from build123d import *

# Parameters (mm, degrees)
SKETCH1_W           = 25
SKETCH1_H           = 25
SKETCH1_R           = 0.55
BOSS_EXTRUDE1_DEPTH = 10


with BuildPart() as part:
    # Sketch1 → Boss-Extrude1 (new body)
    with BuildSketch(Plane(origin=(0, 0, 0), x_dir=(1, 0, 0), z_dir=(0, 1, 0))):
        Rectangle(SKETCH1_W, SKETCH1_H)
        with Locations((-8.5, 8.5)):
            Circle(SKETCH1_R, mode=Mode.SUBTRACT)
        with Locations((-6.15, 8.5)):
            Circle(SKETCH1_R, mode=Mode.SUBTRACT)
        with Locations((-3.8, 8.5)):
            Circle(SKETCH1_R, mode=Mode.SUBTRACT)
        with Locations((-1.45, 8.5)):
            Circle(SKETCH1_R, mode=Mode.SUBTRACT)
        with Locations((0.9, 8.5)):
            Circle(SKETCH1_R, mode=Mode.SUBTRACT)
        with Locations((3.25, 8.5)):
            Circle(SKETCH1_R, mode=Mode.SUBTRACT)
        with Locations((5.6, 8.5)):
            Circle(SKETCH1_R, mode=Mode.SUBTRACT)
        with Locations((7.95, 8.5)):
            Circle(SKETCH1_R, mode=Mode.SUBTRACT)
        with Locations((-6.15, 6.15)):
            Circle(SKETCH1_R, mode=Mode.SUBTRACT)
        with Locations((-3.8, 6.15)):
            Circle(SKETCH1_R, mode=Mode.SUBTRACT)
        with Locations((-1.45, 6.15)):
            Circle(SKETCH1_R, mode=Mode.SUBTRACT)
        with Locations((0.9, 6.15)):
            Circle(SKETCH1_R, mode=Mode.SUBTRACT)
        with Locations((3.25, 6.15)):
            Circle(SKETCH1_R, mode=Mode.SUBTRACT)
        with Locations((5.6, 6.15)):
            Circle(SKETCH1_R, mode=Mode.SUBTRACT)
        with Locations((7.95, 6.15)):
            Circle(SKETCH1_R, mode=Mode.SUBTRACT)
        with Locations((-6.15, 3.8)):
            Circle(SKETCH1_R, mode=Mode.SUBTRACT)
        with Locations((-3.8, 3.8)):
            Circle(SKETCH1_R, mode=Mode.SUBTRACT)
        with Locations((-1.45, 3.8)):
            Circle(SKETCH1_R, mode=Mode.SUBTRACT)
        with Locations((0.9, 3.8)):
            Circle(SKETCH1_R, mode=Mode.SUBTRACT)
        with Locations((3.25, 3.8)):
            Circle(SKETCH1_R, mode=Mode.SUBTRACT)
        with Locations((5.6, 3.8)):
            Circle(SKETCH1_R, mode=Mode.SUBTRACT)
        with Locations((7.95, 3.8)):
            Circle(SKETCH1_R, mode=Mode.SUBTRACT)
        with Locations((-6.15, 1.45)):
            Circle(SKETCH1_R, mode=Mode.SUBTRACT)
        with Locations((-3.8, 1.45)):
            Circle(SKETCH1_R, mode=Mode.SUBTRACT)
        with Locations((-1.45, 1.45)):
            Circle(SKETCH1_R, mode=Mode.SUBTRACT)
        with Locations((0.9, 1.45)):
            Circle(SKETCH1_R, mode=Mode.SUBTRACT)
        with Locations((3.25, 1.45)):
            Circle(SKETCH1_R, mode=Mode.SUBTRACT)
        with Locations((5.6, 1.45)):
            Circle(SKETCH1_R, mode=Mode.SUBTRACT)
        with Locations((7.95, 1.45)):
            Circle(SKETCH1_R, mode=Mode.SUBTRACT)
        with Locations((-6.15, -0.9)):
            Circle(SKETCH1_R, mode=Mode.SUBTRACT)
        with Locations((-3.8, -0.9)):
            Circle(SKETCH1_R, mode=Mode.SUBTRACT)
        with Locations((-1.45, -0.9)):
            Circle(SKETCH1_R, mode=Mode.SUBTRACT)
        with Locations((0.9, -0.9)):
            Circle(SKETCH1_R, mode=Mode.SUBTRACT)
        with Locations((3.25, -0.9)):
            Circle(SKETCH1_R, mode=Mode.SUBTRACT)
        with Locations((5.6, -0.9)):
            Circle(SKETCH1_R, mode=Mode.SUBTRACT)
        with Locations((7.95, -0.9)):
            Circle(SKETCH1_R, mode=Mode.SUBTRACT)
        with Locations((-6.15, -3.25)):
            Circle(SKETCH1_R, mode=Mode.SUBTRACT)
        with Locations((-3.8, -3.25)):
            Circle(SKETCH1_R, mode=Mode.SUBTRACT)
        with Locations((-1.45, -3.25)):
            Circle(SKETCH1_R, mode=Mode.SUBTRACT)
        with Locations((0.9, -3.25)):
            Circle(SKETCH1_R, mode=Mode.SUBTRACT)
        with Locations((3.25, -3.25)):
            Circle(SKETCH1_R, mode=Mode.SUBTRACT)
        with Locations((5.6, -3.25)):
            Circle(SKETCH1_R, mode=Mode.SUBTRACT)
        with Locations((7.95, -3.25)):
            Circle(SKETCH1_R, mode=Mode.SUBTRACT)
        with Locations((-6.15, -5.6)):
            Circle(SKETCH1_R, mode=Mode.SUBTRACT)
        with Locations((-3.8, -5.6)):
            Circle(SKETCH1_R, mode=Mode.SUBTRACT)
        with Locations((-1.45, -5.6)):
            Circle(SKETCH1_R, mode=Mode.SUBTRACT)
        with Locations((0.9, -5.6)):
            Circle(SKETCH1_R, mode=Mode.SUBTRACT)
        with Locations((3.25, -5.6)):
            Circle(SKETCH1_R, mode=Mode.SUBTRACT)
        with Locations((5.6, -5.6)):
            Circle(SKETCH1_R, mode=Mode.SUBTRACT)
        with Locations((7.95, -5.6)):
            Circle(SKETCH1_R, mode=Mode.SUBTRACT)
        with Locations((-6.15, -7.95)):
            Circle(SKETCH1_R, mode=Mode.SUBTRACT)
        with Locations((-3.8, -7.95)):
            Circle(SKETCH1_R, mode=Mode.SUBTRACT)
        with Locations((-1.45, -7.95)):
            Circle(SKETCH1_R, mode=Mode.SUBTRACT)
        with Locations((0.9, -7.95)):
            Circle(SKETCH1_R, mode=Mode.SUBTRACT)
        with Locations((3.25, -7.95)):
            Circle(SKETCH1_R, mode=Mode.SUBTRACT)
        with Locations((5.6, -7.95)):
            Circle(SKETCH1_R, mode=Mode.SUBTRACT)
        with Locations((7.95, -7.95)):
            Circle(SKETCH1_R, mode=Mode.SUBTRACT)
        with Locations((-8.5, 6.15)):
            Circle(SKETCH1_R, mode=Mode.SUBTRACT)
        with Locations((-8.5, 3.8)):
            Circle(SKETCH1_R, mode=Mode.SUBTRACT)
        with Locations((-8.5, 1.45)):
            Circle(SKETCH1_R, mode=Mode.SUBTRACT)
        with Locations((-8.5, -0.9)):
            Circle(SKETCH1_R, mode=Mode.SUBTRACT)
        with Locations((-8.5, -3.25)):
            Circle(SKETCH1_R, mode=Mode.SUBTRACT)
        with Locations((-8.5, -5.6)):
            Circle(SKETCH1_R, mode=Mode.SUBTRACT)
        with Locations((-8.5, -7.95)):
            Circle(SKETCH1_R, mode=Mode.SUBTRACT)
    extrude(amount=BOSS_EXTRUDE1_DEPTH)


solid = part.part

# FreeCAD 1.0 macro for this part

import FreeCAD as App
import Part
import Sketcher

V = App.Vector


def add_polygon(sketch, points):
    """Adds a closed chain of lines whose ends are joined by coincident constraints."""
    first, n = sketch.GeometryCount, len(points)
    for a, b in zip(points, points[1:] + points[:1]):
        sketch.addGeometry(Part.LineSegment(App.Vector(*a, 0), App.Vector(*b, 0)), False)
    for i in range(n):
        sketch.addConstraint(Sketcher.Constraint("Coincident", first + i, 2, first + (i + 1) % n, 1))

doc = App.newDocument("Part")
body = doc.addObject("PartDesign::Body", "Body")

# Sketch on XZ plane
sketch1 = body.newObject("Sketcher::SketchObject", "Sketch")
sketch1.AttachmentSupport = (doc.getObject("XZ_Plane"), [""])
sketch1.MapMode = "FlatFace"
add_polygon(sketch1, [(-12.5, -12.5), (-12.5, 12.5), (12.5, 12.5), (12.5, -12.5)])  # lines 0-3
sketch1.addGeometry(Part.Circle(V(-8.5, 8, 0), V(0, 0, 1), 0.6), False)  # 4
sketch1.addGeometry(Part.Circle(V(-6.2, 8, 0), V(0, 0, 1), 0.6), False)  # 5
sketch1.addGeometry(Part.Circle(V(-8.5, 5.6, 0), V(0, 0, 1), 0.6), False)  # 6
sketch1.addGeometry(Part.Circle(V(-6.2, 5.6, 0), V(0, 0, 1), 0.6), False)  # 7
sketch1.addGeometry(Part.Circle(V(-3.8, 8, 0), V(0, 0, 1), 0.6), False)  # 8
sketch1.addGeometry(Part.Circle(V(-1.4, 8, 0), V(0, 0, 1), 0.6), False)  # 9
sketch1.addGeometry(Part.Circle(V(-3.8, 5.6, 0), V(0, 0, 1), 0.6), False)  # 10
sketch1.addGeometry(Part.Circle(V(-1.4, 5.6, 0), V(0, 0, 1), 0.6), False)  # 11
sketch1.addGeometry(Part.Circle(V(-8.5, 3.2, 0), V(0, 0, 1), 0.6), False)  # 12
sketch1.addGeometry(Part.Circle(V(-6.2, 3.2, 0), V(0, 0, 1), 0.6), False)  # 13
sketch1.addGeometry(Part.Circle(V(-8.5, 0.9, 0), V(0, 0, 1), 0.6), False)  # 14
sketch1.addGeometry(Part.Circle(V(-6.2, 0.9, 0), V(0, 0, 1), 0.6), False)  # 15
sketch1.addGeometry(Part.Circle(V(-3.8, 3.2, 0), V(0, 0, 1), 0.6), False)  # 16
sketch1.addGeometry(Part.Circle(V(-1.4, 3.2, 0), V(0, 0, 1), 0.6), False)  # 17
sketch1.addGeometry(Part.Circle(V(-3.8, 0.9, 0), V(0, 0, 1), 0.6), False)  # 18
sketch1.addGeometry(Part.Circle(V(-1.4, 0.9, 0), V(0, 0, 1), 0.6), False)  # 19
sketch1.addGeometry(Part.Circle(V(0.9, 8, 0), V(0, 0, 1), 0.6), False)  # 20
sketch1.addGeometry(Part.Circle(V(3.2, 8, 0), V(0, 0, 1), 0.6), False)  # 21
sketch1.addGeometry(Part.Circle(V(0.9, 5.6, 0), V(0, 0, 1), 0.6), False)  # 22
sketch1.addGeometry(Part.Circle(V(3.2, 5.6, 0), V(0, 0, 1), 0.6), False)  # 23
sketch1.addGeometry(Part.Circle(V(5.6, 8, 0), V(0, 0, 1), 0.6), False)  # 24
sketch1.addGeometry(Part.Circle(V(8, 8, 0), V(0, 0, 1), 0.6), False)  # 25
sketch1.addGeometry(Part.Circle(V(5.6, 5.6, 0), V(0, 0, 1), 0.6), False)  # 26
sketch1.addGeometry(Part.Circle(V(8, 5.6, 0), V(0, 0, 1), 0.6), False)  # 27
sketch1.addGeometry(Part.Circle(V(0.9, 3.2, 0), V(0, 0, 1), 0.6), False)  # 28
sketch1.addGeometry(Part.Circle(V(3.2, 3.2, 0), V(0, 0, 1), 0.6), False)  # 29
sketch1.addGeometry(Part.Circle(V(0.9, 0.9, 0), V(0, 0, 1), 0.6), False)  # 30
sketch1.addGeometry(Part.Circle(V(3.2, 0.9, 0), V(0, 0, 1), 0.6), False)  # 31
sketch1.addGeometry(Part.Circle(V(5.6, 3.2, 0), V(0, 0, 1), 0.6), False)  # 32
sketch1.addGeometry(Part.Circle(V(8, 3.2, 0), V(0, 0, 1), 0.6), False)  # 33
sketch1.addGeometry(Part.Circle(V(5.6, 0.9, 0), V(0, 0, 1), 0.6), False)  # 34
sketch1.addGeometry(Part.Circle(V(8, 0.9, 0), V(0, 0, 1), 0.6), False)  # 35
sketch1.addGeometry(Part.Circle(V(-8.5, -1.4, 0), V(0, 0, 1), 0.6), False)  # 36
sketch1.addGeometry(Part.Circle(V(-6.2, -1.4, 0), V(0, 0, 1), 0.6), False)  # 37
sketch1.addGeometry(Part.Circle(V(-8.5, -3.8, 0), V(0, 0, 1), 0.6), False)  # 38
sketch1.addGeometry(Part.Circle(V(-6.2, -3.8, 0), V(0, 0, 1), 0.6), False)  # 39
sketch1.addGeometry(Part.Circle(V(-3.8, -1.4, 0), V(0, 0, 1), 0.6), False)  # 40
sketch1.addGeometry(Part.Circle(V(-1.4, -1.4, 0), V(0, 0, 1), 0.6), False)  # 41
sketch1.addGeometry(Part.Circle(V(-3.8, -3.8, 0), V(0, 0, 1), 0.6), False)  # 42
sketch1.addGeometry(Part.Circle(V(-1.4, -3.8, 0), V(0, 0, 1), 0.6), False)  # 43
sketch1.addGeometry(Part.Circle(V(-8.5, -6.2, 0), V(0, 0, 1), 0.6), False)  # 44
sketch1.addGeometry(Part.Circle(V(-6.2, -6.2, 0), V(0, 0, 1), 0.6), False)  # 45
sketch1.addGeometry(Part.Circle(V(-8.5, -8.5, 0), V(0, 0, 1), 0.6), False)  # 46
sketch1.addGeometry(Part.Circle(V(-6.2, -8.5, 0), V(0, 0, 1), 0.6), False)  # 47
sketch1.addGeometry(Part.Circle(V(-3.8, -6.2, 0), V(0, 0, 1), 0.6), False)  # 48
sketch1.addGeometry(Part.Circle(V(-1.4, -6.2, 0), V(0, 0, 1), 0.6), False)  # 49
sketch1.addGeometry(Part.Circle(V(-3.8, -8.5, 0), V(0, 0, 1), 0.6), False)  # 50
sketch1.addGeometry(Part.Circle(V(-1.4, -8.5, 0), V(0, 0, 1), 0.6), False)  # 51
sketch1.addGeometry(Part.Circle(V(0.9, -1.4, 0), V(0, 0, 1), 0.6), False)  # 52
sketch1.addGeometry(Part.Circle(V(3.2, -1.4, 0), V(0, 0, 1), 0.6), False)  # 53
sketch1.addGeometry(Part.Circle(V(0.9, -3.8, 0), V(0, 0, 1), 0.6), False)  # 54
sketch1.addGeometry(Part.Circle(V(3.2, -3.8, 0), V(0, 0, 1), 0.6), False)  # 55
sketch1.addGeometry(Part.Circle(V(5.6, -1.4, 0), V(0, 0, 1), 0.6), False)  # 56
sketch1.addGeometry(Part.Circle(V(8, -1.4, 0), V(0, 0, 1), 0.6), False)  # 57
sketch1.addGeometry(Part.Circle(V(5.6, -3.8, 0), V(0, 0, 1), 0.6), False)  # 58
sketch1.addGeometry(Part.Circle(V(8, -3.8, 0), V(0, 0, 1), 0.6), False)  # 59
sketch1.addGeometry(Part.Circle(V(0.9, -6.2, 0), V(0, 0, 1), 0.6), False)  # 60
sketch1.addGeometry(Part.Circle(V(3.2, -6.2, 0), V(0, 0, 1), 0.6), False)  # 61
sketch1.addGeometry(Part.Circle(V(0.9, -8.5, 0), V(0, 0, 1), 0.6), False)  # 62
sketch1.addGeometry(Part.Circle(V(3.2, -8.5, 0), V(0, 0, 1), 0.6), False)  # 63
sketch1.addGeometry(Part.Circle(V(5.6, -6.2, 0), V(0, 0, 1), 0.6), False)  # 64
sketch1.addGeometry(Part.Circle(V(8, -6.2, 0), V(0, 0, 1), 0.6), False)  # 65
sketch1.addGeometry(Part.Circle(V(5.6, -8.5, 0), V(0, 0, 1), 0.6), False)  # 66
sketch1.addGeometry(Part.Circle(V(8, -8.5, 0), V(0, 0, 1), 0.6), False)  # 67
sketch1.addConstraint(Sketcher.Constraint("Vertical", 0))
sketch1.addConstraint(Sketcher.Constraint("Horizontal", 1))
sketch1.addConstraint(Sketcher.Constraint("Vertical", 2))
sketch1.addConstraint(Sketcher.Constraint("Horizontal", 3))
sketch1.addConstraint(Sketcher.Constraint("Equal", 4, 5))
sketch1.addConstraint(Sketcher.Constraint("Equal", 5, 6))
sketch1.addConstraint(Sketcher.Constraint("Equal", 6, 7))
sketch1.addConstraint(Sketcher.Constraint("Equal", 7, 8))
sketch1.addConstraint(Sketcher.Constraint("Equal", 8, 9))
sketch1.addConstraint(Sketcher.Constraint("Equal", 9, 10))
sketch1.addConstraint(Sketcher.Constraint("Equal", 10, 11))
sketch1.addConstraint(Sketcher.Constraint("Equal", 11, 12))
sketch1.addConstraint(Sketcher.Constraint("Equal", 12, 13))
sketch1.addConstraint(Sketcher.Constraint("Equal", 13, 14))
sketch1.addConstraint(Sketcher.Constraint("Equal", 14, 15))
sketch1.addConstraint(Sketcher.Constraint("Equal", 15, 16))
sketch1.addConstraint(Sketcher.Constraint("Equal", 16, 17))
sketch1.addConstraint(Sketcher.Constraint("Equal", 17, 18))
sketch1.addConstraint(Sketcher.Constraint("Equal", 18, 19))
sketch1.addConstraint(Sketcher.Constraint("Equal", 19, 20))
sketch1.addConstraint(Sketcher.Constraint("Equal", 20, 21))
sketch1.addConstraint(Sketcher.Constraint("Equal", 21, 22))
sketch1.addConstraint(Sketcher.Constraint("Equal", 22, 23))
sketch1.addConstraint(Sketcher.Constraint("Equal", 23, 24))
sketch1.addConstraint(Sketcher.Constraint("Equal", 24, 25))
sketch1.addConstraint(Sketcher.Constraint("Equal", 25, 26))
sketch1.addConstraint(Sketcher.Constraint("Equal", 26, 27))
sketch1.addConstraint(Sketcher.Constraint("Equal", 27, 28))
sketch1.addConstraint(Sketcher.Constraint("Equal", 28, 29))
sketch1.addConstraint(Sketcher.Constraint("Equal", 29, 30))
sketch1.addConstraint(Sketcher.Constraint("Equal", 30, 31))
sketch1.addConstraint(Sketcher.Constraint("Equal", 31, 32))
sketch1.addConstraint(Sketcher.Constraint("Equal", 32, 33))
sketch1.addConstraint(Sketcher.Constraint("Equal", 33, 34))
sketch1.addConstraint(Sketcher.Constraint("Equal", 34, 35))
sketch1.addConstraint(Sketcher.Constraint("Equal", 35, 36))
sketch1.addConstraint(Sketcher.Constraint("Equal", 36, 37))
sketch1.addConstraint(Sketcher.Constraint("Equal", 37, 38))
sketch1.addConstraint(Sketcher.Constraint("Equal", 38, 39))
sketch1.addConstraint(Sketcher.Constraint("Equal", 39, 40))
sketch1.addConstraint(Sketcher.Constraint("Equal", 40, 41))
sketch1.addConstraint(Sketcher.Constraint("Equal", 41, 42))
sketch1.addConstraint(Sketcher.Constraint("Equal", 42, 43))
sketch1.addConstraint(Sketcher.Constraint("Equal", 43, 44))
sketch1.addConstraint(Sketcher.Constraint("Equal", 44, 45))
sketch1.addConstraint(Sketcher.Constraint("Equal", 45, 46))
sketch1.addConstraint(Sketcher.Constraint("Equal", 46, 47))
sketch1.addConstraint(Sketcher.Constraint("Equal", 47, 48))
sketch1.addConstraint(Sketcher.Constraint("Equal", 48, 49))
sketch1.addConstraint(Sketcher.Constraint("Equal", 49, 50))
sketch1.addConstraint(Sketcher.Constraint("Equal", 50, 51))
sketch1.addConstraint(Sketcher.Constraint("Equal", 51, 52))
sketch1.addConstraint(Sketcher.Constraint("Equal", 52, 53))
sketch1.addConstraint(Sketcher.Constraint("Equal", 53, 54))
sketch1.addConstraint(Sketcher.Constraint("Equal", 54, 55))
sketch1.addConstraint(Sketcher.Constraint("Equal", 55, 56))
sketch1.addConstraint(Sketcher.Constraint("Equal", 56, 57))
sketch1.addConstraint(Sketcher.Constraint("Equal", 57, 58))
sketch1.addConstraint(Sketcher.Constraint("Equal", 58, 59))
sketch1.addConstraint(Sketcher.Constraint("Equal", 59, 60))
sketch1.addConstraint(Sketcher.Constraint("Equal", 60, 61))
sketch1.addConstraint(Sketcher.Constraint("Equal", 61, 62))
sketch1.addConstraint(Sketcher.Constraint("Equal", 62, 63))
sketch1.addConstraint(Sketcher.Constraint("Equal", 63, 64))
sketch1.addConstraint(Sketcher.Constraint("Equal", 64, 65))
sketch1.addConstraint(Sketcher.Constraint("Equal", 65, 66))
sketch1.addConstraint(Sketcher.Constraint("Equal", 66, 67))
sketch1.addConstraint(Sketcher.Constraint("Symmetric", 0, 2, 2, 2, -1, 1))
sketch1.addConstraint(Sketcher.Constraint("Horizontal", 4, 3, 5, 3))
sketch1.addConstraint(Sketcher.Constraint("Horizontal", 6, 3, 7, 3))
sketch1.addConstraint(Sketcher.Constraint("Horizontal", 5, 3, 8, 3))
sketch1.addConstraint(Sketcher.Constraint("Horizontal", 8, 3, 9, 3))
sketch1.addConstraint(Sketcher.Constraint("Horizontal", 7, 3, 10, 3))
sketch1.addConstraint(Sketcher.Constraint("Horizontal", 10, 3, 11, 3))
sketch1.addConstraint(Sketcher.Constraint("Horizontal", 12, 3, 13, 3))
sketch1.addConstraint(Sketcher.Constraint("Horizontal", 14, 3, 15, 3))
sketch1.addConstraint(Sketcher.Constraint("Horizontal", 13, 3, 16, 3))
sketch1.addConstraint(Sketcher.Constraint("Horizontal", 16, 3, 17, 3))
sketch1.addConstraint(Sketcher.Constraint("Horizontal", 15, 3, 18, 3))
sketch1.addConstraint(Sketcher.Constraint("Horizontal", 18, 3, 19, 3))
sketch1.addConstraint(Sketcher.Constraint("Horizontal", 9, 3, 20, 3))
sketch1.addConstraint(Sketcher.Constraint("Horizontal", 20, 3, 21, 3))
sketch1.addConstraint(Sketcher.Constraint("Horizontal", 11, 3, 22, 3))
sketch1.addConstraint(Sketcher.Constraint("Horizontal", 22, 3, 23, 3))
sketch1.addConstraint(Sketcher.Constraint("Horizontal", 21, 3, 24, 3))
sketch1.addConstraint(Sketcher.Constraint("Horizontal", 24, 3, 25, 3))
sketch1.addConstraint(Sketcher.Constraint("Horizontal", 23, 3, 26, 3))
sketch1.addConstraint(Sketcher.Constraint("Horizontal", 26, 3, 27, 3))
sketch1.addConstraint(Sketcher.Constraint("Horizontal", 17, 3, 28, 3))
sketch1.addConstraint(Sketcher.Constraint("Horizontal", 28, 3, 29, 3))
sketch1.addConstraint(Sketcher.Constraint("Horizontal", 19, 3, 30, 3))
sketch1.addConstraint(Sketcher.Constraint("Horizontal", 30, 3, 31, 3))
sketch1.addConstraint(Sketcher.Constraint("Horizontal", 29, 3, 32, 3))
sketch1.addConstraint(Sketcher.Constraint("Horizontal", 32, 3, 33, 3))
sketch1.addConstraint(Sketcher.Constraint("Horizontal", 31, 3, 34, 3))
sketch1.addConstraint(Sketcher.Constraint("Horizontal", 34, 3, 35, 3))
sketch1.addConstraint(Sketcher.Constraint("Horizontal", 36, 3, 37, 3))
sketch1.addConstraint(Sketcher.Constraint("Horizontal", 38, 3, 39, 3))
sketch1.addConstraint(Sketcher.Constraint("Horizontal", 37, 3, 40, 3))
sketch1.addConstraint(Sketcher.Constraint("Horizontal", 40, 3, 41, 3))
sketch1.addConstraint(Sketcher.Constraint("Horizontal", 39, 3, 42, 3))
sketch1.addConstraint(Sketcher.Constraint("Horizontal", 42, 3, 43, 3))
sketch1.addConstraint(Sketcher.Constraint("Horizontal", 44, 3, 45, 3))
sketch1.addConstraint(Sketcher.Constraint("Horizontal", 46, 3, 47, 3))
sketch1.addConstraint(Sketcher.Constraint("Horizontal", 45, 3, 48, 3))
sketch1.addConstraint(Sketcher.Constraint("Horizontal", 48, 3, 49, 3))
sketch1.addConstraint(Sketcher.Constraint("Horizontal", 47, 3, 50, 3))
sketch1.addConstraint(Sketcher.Constraint("Horizontal", 50, 3, 51, 3))
sketch1.addConstraint(Sketcher.Constraint("Horizontal", 41, 3, 52, 3))
sketch1.addConstraint(Sketcher.Constraint("Horizontal", 52, 3, 53, 3))
sketch1.addConstraint(Sketcher.Constraint("Horizontal", 43, 3, 54, 3))
sketch1.addConstraint(Sketcher.Constraint("Horizontal", 54, 3, 55, 3))
sketch1.addConstraint(Sketcher.Constraint("Horizontal", 53, 3, 56, 3))
sketch1.addConstraint(Sketcher.Constraint("Horizontal", 56, 3, 57, 3))
sketch1.addConstraint(Sketcher.Constraint("Horizontal", 55, 3, 58, 3))
sketch1.addConstraint(Sketcher.Constraint("Horizontal", 58, 3, 59, 3))
sketch1.addConstraint(Sketcher.Constraint("Horizontal", 49, 3, 60, 3))
sketch1.addConstraint(Sketcher.Constraint("Horizontal", 60, 3, 61, 3))
sketch1.addConstraint(Sketcher.Constraint("Horizontal", 51, 3, 62, 3))
sketch1.addConstraint(Sketcher.Constraint("Horizontal", 62, 3, 63, 3))
sketch1.addConstraint(Sketcher.Constraint("Horizontal", 61, 3, 64, 3))
sketch1.addConstraint(Sketcher.Constraint("Horizontal", 64, 3, 65, 3))
sketch1.addConstraint(Sketcher.Constraint("Horizontal", 63, 3, 66, 3))
sketch1.addConstraint(Sketcher.Constraint("Horizontal", 66, 3, 67, 3))
sketch1.addConstraint(Sketcher.Constraint("Vertical", 4, 3, 6, 3))
sketch1.addConstraint(Sketcher.Constraint("Vertical", 5, 3, 7, 3))
sketch1.addConstraint(Sketcher.Constraint("Vertical", 8, 3, 10, 3))
sketch1.addConstraint(Sketcher.Constraint("Vertical", 9, 3, 11, 3))
sketch1.addConstraint(Sketcher.Constraint("Vertical", 6, 3, 12, 3))
sketch1.addConstraint(Sketcher.Constraint("Vertical", 7, 3, 13, 3))
sketch1.addConstraint(Sketcher.Constraint("Vertical", 12, 3, 14, 3))
sketch1.addConstraint(Sketcher.Constraint("Vertical", 13, 3, 15, 3))
sketch1.addConstraint(Sketcher.Constraint("Vertical", 10, 3, 16, 3))
sketch1.addConstraint(Sketcher.Constraint("Vertical", 11, 3, 17, 3))
sketch1.addConstraint(Sketcher.Constraint("Vertical", 16, 3, 18, 3))
sketch1.addConstraint(Sketcher.Constraint("Vertical", 17, 3, 19, 3))
sketch1.addConstraint(Sketcher.Constraint("Vertical", 20, 3, 22, 3))
sketch1.addConstraint(Sketcher.Constraint("Vertical", 21, 3, 23, 3))
sketch1.addConstraint(Sketcher.Constraint("Vertical", 24, 3, 26, 3))
sketch1.addConstraint(Sketcher.Constraint("Vertical", 25, 3, 27, 3))
sketch1.addConstraint(Sketcher.Constraint("Vertical", 22, 3, 28, 3))
sketch1.addConstraint(Sketcher.Constraint("Vertical", 23, 3, 29, 3))
sketch1.addConstraint(Sketcher.Constraint("Vertical", 28, 3, 30, 3))
sketch1.addConstraint(Sketcher.Constraint("Vertical", 29, 3, 31, 3))
sketch1.addConstraint(Sketcher.Constraint("Vertical", 26, 3, 32, 3))
sketch1.addConstraint(Sketcher.Constraint("Vertical", 27, 3, 33, 3))
sketch1.addConstraint(Sketcher.Constraint("Vertical", 32, 3, 34, 3))
sketch1.addConstraint(Sketcher.Constraint("Vertical", 33, 3, 35, 3))
sketch1.addConstraint(Sketcher.Constraint("Vertical", 14, 3, 36, 3))
sketch1.addConstraint(Sketcher.Constraint("Vertical", 15, 3, 37, 3))
sketch1.addConstraint(Sketcher.Constraint("Vertical", 36, 3, 38, 3))
sketch1.addConstraint(Sketcher.Constraint("Vertical", 37, 3, 39, 3))
sketch1.addConstraint(Sketcher.Constraint("Vertical", 18, 3, 40, 3))
sketch1.addConstraint(Sketcher.Constraint("Vertical", 19, 3, 41, 3))
sketch1.addConstraint(Sketcher.Constraint("Vertical", 40, 3, 42, 3))
sketch1.addConstraint(Sketcher.Constraint("Vertical", 41, 3, 43, 3))
sketch1.addConstraint(Sketcher.Constraint("Vertical", 38, 3, 44, 3))
sketch1.addConstraint(Sketcher.Constraint("Vertical", 39, 3, 45, 3))
sketch1.addConstraint(Sketcher.Constraint("Vertical", 44, 3, 46, 3))
sketch1.addConstraint(Sketcher.Constraint("Vertical", 45, 3, 47, 3))
sketch1.addConstraint(Sketcher.Constraint("Vertical", 42, 3, 48, 3))
sketch1.addConstraint(Sketcher.Constraint("Vertical", 43, 3, 49, 3))
sketch1.addConstraint(Sketcher.Constraint("Vertical", 48, 3, 50, 3))
sketch1.addConstraint(Sketcher.Constraint("Vertical", 49, 3, 51, 3))
sketch1.addConstraint(Sketcher.Constraint("Vertical", 30, 3, 52, 3))
sketch1.addConstraint(Sketcher.Constraint("Vertical", 31, 3, 53, 3))
sketch1.addConstraint(Sketcher.Constraint("Vertical", 52, 3, 54, 3))
sketch1.addConstraint(Sketcher.Constraint("Vertical", 53, 3, 55, 3))
sketch1.addConstraint(Sketcher.Constraint("Vertical", 34, 3, 56, 3))
sketch1.addConstraint(Sketcher.Constraint("Vertical", 35, 3, 57, 3))
sketch1.addConstraint(Sketcher.Constraint("Vertical", 56, 3, 58, 3))
sketch1.addConstraint(Sketcher.Constraint("Vertical", 57, 3, 59, 3))
sketch1.addConstraint(Sketcher.Constraint("Vertical", 54, 3, 60, 3))
sketch1.addConstraint(Sketcher.Constraint("Vertical", 55, 3, 61, 3))
sketch1.addConstraint(Sketcher.Constraint("Vertical", 60, 3, 62, 3))
sketch1.addConstraint(Sketcher.Constraint("Vertical", 61, 3, 63, 3))
sketch1.addConstraint(Sketcher.Constraint("Vertical", 58, 3, 64, 3))
sketch1.addConstraint(Sketcher.Constraint("Vertical", 59, 3, 65, 3))
sketch1.addConstraint(Sketcher.Constraint("Vertical", 64, 3, 66, 3))
sketch1.addConstraint(Sketcher.Constraint("Vertical", 65, 3, 67, 3))
sketch1.addConstraint(Sketcher.Constraint("Equal", 3, 0))
sketch1.addConstraint(Sketcher.Constraint("Diameter", 4, 1.1))
sketch1.addConstraint(Sketcher.Constraint("DistanceX", 1, 1, 1, 2, 25.0))
sketch1.addConstraint(Sketcher.Constraint("DistanceX", 4, 3, -1, 1, 8.5))
sketch1.addConstraint(Sketcher.Constraint("DistanceY", -1, 1, 6, 3, 5.6))
sketch1.addConstraint(Sketcher.Constraint("DistanceX", 8, 3, -1, 1, 3.8))
sketch1.addConstraint(Sketcher.Constraint("DistanceY", -1, 1, 14, 3, 0.9))
sketch1.addConstraint(Sketcher.Constraint("DistanceX", -1, 1, 20, 3, 0.9))
sketch1.addConstraint(Sketcher.Constraint("DistanceX", -1, 1, 24, 3, 5.6))
sketch1.addConstraint(Sketcher.Constraint("DistanceY", 38, 3, -1, 1, 3.8))
sketch1.addConstraint(Sketcher.Constraint("DistanceY", 46, 3, -1, 1, 8.5))
sketch1.addConstraint(Sketcher.Constraint("DistanceY", -1, 1, 4, 3, 7.95))
sketch1.addConstraint(Sketcher.Constraint("DistanceX", 5, 3, -1, 1, 6.15))
sketch1.addConstraint(Sketcher.Constraint("DistanceX", 9, 3, -1, 1, 1.45))
sketch1.addConstraint(Sketcher.Constraint("DistanceY", -1, 1, 12, 3, 3.25))
sketch1.addConstraint(Sketcher.Constraint("DistanceX", -1, 1, 21, 3, 3.25))
sketch1.addConstraint(Sketcher.Constraint("DistanceX", -1, 1, 25, 3, 7.95))
sketch1.addConstraint(Sketcher.Constraint("DistanceY", 36, 3, -1, 1, 1.45))
sketch1.addConstraint(Sketcher.Constraint("DistanceY", 44, 3, -1, 1, 6.15))
pad1 = body.newObject("PartDesign::Pad", "Pad")
pad1.Profile = sketch1
pad1.Length = 10
pad1.Reversed = True

doc.recompute()
